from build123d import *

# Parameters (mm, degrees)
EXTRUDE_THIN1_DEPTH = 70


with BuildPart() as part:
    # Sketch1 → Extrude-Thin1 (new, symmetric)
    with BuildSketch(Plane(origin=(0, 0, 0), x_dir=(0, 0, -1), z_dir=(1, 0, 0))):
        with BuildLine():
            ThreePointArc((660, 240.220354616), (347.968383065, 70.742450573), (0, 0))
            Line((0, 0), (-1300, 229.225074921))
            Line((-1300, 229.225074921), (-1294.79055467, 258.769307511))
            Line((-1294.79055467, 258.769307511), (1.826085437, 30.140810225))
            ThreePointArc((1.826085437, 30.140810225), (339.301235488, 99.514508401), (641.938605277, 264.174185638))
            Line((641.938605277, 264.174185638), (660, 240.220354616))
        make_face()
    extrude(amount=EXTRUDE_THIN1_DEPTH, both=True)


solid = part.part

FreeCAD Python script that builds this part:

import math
import FreeCAD as App
import Part
import Sketcher
Q = App.Units.Quantity

doc = App.newDocument("Part")
body = doc.addObject("PartDesign::Body", "Body")

# Sketch on YZ plane
sketch1 = body.newObject("Sketcher::SketchObject", "Sketch")
sketch1.AttachmentSupport = (doc.getObject("YZ_Plane"), [""])
sketch1.MapMode = "FlatFace"
sketch1.addGeometry([
    Part.ArcOfCircle(Part.Circle(App.Vector(1198.373596, 62.455789, 0), App.Vector(0, 0, 1), 1200), math.radians(-177.016608), math.radians(-142.983392)),  # 0
    Part.LineSegment(App.Vector(240.220355, -660, 0), App.Vector(264.174186, -641.938605, 0)),  # 1
    Part.ArcOfCircle(Part.Circle(App.Vector(1198.373596, 62.455789, 0), App.Vector(0, 0, 1), 1170), math.radians(-176.850482), math.radians(-142.983392)),  # 2
    Part.LineSegment(App.Vector(30.14081, -1.826085, 0), App.Vector(258.769308, 1294.790555, 0)),  # 3
    Part.LineSegment(App.Vector(258.769308, 1294.790555, 0), App.Vector(229.225075, 1300, 0)),  # 4
    Part.LineSegment(App.Vector(229.225075, 1300, 0), App.Vector(0, 0, 0)),  # 5
], False)
sketch1.addConstraint([
    Sketcher.Constraint("Coincident", 0, 2, 1, 1),
    Sketcher.Constraint("Coincident", 1, 2, 2, 2),
    Sketcher.Constraint("Coincident", 2, 1, 3, 1),
    Sketcher.Constraint("Coincident", 3, 2, 4, 1),
    Sketcher.Constraint("Coincident", 4, 2, 5, 1),
    Sketcher.Constraint("Coincident", 5, 2, 0, 1),
    Sketcher.Constraint("Coincident", 5, 2, -1, 1),
    Sketcher.Constraint("Coincident", 2, 3, 0, 3),
    Sketcher.Constraint("Perpendicular", 3, 4),
    Sketcher.Constraint("Perpendicular", 4, 5),
    Sketcher.Constraint("Equal", 1, 4),
    Sketcher.Constraint("Radius", 0, Q("1200 mm")),
    Sketcher.Constraint("Radius", 2, Q("1170 mm")),
    Sketcher.Constraint("Angle", 3, Q("80 deg")),
    Sketcher.Constraint("DistanceY", -1, 1, 4, 2, Q("1300 mm")),
    Sketcher.Constraint("Distance", 3, Q("1316.619042 mm")),
    Sketcher.Constraint("DistanceX", 1, 2, 2, 3, Q("934.19941 mm")),
    Sketcher.Constraint("Angle", 1, Q("37.016608 deg")),
])
pad1 = body.newObject("PartDesign::Pad", "Pad")
pad1.Profile = sketch1
pad1.Length = 140
pad1.Midplane = True

doc.recompute()
